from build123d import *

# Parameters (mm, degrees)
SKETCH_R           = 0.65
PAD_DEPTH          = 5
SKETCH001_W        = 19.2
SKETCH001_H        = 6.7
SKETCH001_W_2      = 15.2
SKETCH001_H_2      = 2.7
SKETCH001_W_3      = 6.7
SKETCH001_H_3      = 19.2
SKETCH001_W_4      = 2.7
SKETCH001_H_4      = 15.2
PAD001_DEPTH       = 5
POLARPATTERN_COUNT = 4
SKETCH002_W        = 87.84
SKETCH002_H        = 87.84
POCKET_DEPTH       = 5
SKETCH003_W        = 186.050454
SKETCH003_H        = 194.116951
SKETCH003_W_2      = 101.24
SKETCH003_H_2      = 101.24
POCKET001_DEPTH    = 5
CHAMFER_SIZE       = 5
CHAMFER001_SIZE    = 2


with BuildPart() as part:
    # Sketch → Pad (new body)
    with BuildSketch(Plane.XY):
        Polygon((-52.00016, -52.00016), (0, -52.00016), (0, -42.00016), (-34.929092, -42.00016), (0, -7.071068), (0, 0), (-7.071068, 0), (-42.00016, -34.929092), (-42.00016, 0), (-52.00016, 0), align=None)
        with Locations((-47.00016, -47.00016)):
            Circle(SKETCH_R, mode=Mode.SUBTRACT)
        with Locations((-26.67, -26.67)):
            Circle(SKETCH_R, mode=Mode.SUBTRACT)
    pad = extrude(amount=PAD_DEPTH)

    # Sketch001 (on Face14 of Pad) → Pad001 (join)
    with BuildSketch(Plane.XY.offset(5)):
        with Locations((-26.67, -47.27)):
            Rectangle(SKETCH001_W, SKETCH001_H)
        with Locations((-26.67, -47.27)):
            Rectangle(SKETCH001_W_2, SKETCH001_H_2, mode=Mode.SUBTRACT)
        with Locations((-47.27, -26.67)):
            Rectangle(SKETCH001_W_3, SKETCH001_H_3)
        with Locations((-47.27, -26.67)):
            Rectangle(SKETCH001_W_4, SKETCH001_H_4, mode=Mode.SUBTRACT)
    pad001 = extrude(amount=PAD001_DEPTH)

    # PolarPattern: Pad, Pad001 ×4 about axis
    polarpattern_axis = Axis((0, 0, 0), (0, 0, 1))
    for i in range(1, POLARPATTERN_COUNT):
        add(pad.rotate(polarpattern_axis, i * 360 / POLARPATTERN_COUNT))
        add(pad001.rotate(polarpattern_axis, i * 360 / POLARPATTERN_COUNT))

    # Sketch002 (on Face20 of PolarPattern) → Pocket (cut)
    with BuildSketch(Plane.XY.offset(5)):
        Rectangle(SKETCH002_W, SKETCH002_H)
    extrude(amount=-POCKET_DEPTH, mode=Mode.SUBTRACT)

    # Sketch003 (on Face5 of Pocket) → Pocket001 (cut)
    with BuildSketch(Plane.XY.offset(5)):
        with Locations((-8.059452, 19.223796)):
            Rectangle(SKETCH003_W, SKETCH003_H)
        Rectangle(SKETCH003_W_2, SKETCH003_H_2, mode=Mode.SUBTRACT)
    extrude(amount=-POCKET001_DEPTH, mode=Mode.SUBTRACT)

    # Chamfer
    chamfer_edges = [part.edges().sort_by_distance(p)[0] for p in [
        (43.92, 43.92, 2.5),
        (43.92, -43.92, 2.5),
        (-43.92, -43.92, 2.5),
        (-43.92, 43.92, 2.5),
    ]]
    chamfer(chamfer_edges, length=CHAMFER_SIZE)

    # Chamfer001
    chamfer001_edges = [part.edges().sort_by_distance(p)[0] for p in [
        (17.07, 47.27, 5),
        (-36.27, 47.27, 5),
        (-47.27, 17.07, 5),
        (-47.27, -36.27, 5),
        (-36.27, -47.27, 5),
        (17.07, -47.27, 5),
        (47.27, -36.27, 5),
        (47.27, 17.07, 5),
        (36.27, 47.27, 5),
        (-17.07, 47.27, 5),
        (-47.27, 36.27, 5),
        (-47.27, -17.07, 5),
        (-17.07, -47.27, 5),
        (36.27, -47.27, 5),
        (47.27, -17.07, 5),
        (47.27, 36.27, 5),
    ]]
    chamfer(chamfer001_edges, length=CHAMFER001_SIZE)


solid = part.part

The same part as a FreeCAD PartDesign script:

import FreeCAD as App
import Part
import Sketcher


def edges_at(feature, points):
    """Names of the edges that pass closest to the given points."""
    edges = feature.Shape.Edges
    near = lambda p: min(range(len(edges)), key=lambda i: edges[i].distToShape(Part.Vertex(*p))[0])
    return sorted({f"Edge{near(p) + 1}" for p in points})

doc = App.newDocument("Part")
body = doc.addObject("PartDesign::Body", "Body")

# Sketch on XY plane
sketch1 = body.newObject("Sketcher::SketchObject", "Sketch")
sketch1.AttachmentSupport = (doc.getObject("XY_Plane"), [""])
sketch1.MapMode = "FlatFace"
sketch1.addGeometry([
    Part.LineSegment(App.Vector(-52.00016, -52.00016, 0), App.Vector(0, -52.00016, 0)),  # 0
    Part.LineSegment(App.Vector(0, -52.00016, 0), App.Vector(0, -42.00016, 0)),  # 1
    Part.LineSegment(App.Vector(0, -42.00016, 0), App.Vector(-34.929092, -42.00016, 0)),  # 2
    Part.LineSegment(App.Vector(-34.929092, -42.00016, 0), App.Vector(0, -7.071068, 0)),  # 3
    Part.LineSegment(App.Vector(0, -7.071068, 0), App.Vector(0, 0, 0)),  # 4
    Part.LineSegment(App.Vector(0, 0, 0), App.Vector(-7.071068, 0, 0)),  # 5
    Part.LineSegment(App.Vector(-7.071068, 0, 0), App.Vector(-42.00016, -34.929092, 0)),  # 6
    Part.LineSegment(App.Vector(-42.00016, -34.929092, 0), App.Vector(-42.00016, 0, 0)),  # 7
    Part.LineSegment(App.Vector(-42.00016, 0, 0), App.Vector(-52.00016, 0, 0)),  # 8
    Part.LineSegment(App.Vector(-52.00016, 0, 0), App.Vector(-52.00016, -52.00016, 0)),  # 9
    Part.Circle(App.Vector(-47.00016, -47.00016, 0), App.Vector(0, 0, 1), 0.65),  # 10
    Part.Circle(App.Vector(-26.67, -26.67, 0), App.Vector(0, 0, 1), 0.65),  # 11
], False)
sketch1.addConstraint([
    Sketcher.Constraint("Coincident", 0, 2, 1, 1),
    Sketcher.Constraint("Coincident", 1, 2, 2, 1),
    Sketcher.Constraint("Coincident", 2, 2, 3, 1),
    Sketcher.Constraint("Coincident", 3, 2, 4, 1),
    Sketcher.Constraint("Coincident", 4, 2, 5, 1),
    Sketcher.Constraint("Coincident", 5, 2, 6, 1),
    Sketcher.Constraint("Coincident", 6, 2, 7, 1),
    Sketcher.Constraint("Coincident", 7, 2, 8, 1),
    Sketcher.Constraint("Coincident", 8, 2, 9, 1),
    Sketcher.Constraint("Coincident", 9, 2, 0, 1),
    Sketcher.Constraint("Horizontal", 0),
    Sketcher.Constraint("Vertical", 1),
    Sketcher.Constraint("Horizontal", 2),
    Sketcher.Constraint("Vertical", 4),
    Sketcher.Constraint("Horizontal", 5),
    Sketcher.Constraint("Vertical", 7),
    Sketcher.Constraint("Horizontal", 8),
    Sketcher.Constraint("Vertical", 9),
    Sketcher.Constraint("Coincident", 4, 2, -1, 1),
    Sketcher.Constraint("Equal", 10, 11),
    Sketcher.Constraint("PointOnObject", 0, 2, -2),
    Sketcher.Constraint("PointOnObject", 7, 2, -1),
    Sketcher.Constraint("Parallel", 3, 6),
    Sketcher.Constraint("Equal", 8, 1),
    Sketcher.Constraint("Equal", 5, 4),
    Sketcher.Constraint("Equal", 2, 7),
    Sketcher.Constraint("Equal", 0, 9),
    Sketcher.Constraint("Diameter", 10, 1.3),
    Sketcher.Constraint("DistanceX", 8, 2, 8, 1, 10.0),
    Sketcher.Constraint("DistanceY", 0, 2, 10, 3, 5.0),
    Sketcher.Constraint("DistanceX", 10, 3, 6, 2, 5.0),
    Sketcher.Constraint("DistanceX", 11, 3, -1, 1, 26.67),
    Sketcher.Constraint("DistanceY", 11, 3, -1, 1, 26.67),
    Sketcher.Constraint("DistanceX", 0, 1, 0, 2, 52.00016),
    Sketcher.Constraint("DistanceX", 2, 2, 2, 1, 34.929092),
])
pad1 = body.newObject("PartDesign::Pad", "Pad")
pad1.Profile = sketch1
pad1.Length = 5

# Sketch on XY plane
sketch2 = body.newObject("Sketcher::SketchObject", "Sketch001")
sketch2.AttachmentSupport = (doc.getObject("XY_Plane"), [""])
sketch2.MapMode = "FlatFace"
sketch2.AttachmentOffset = App.Placement(App.Vector(0, 0, 5), App.Rotation())
sketch2.addGeometry([
    Part.LineSegment(App.Vector(-36.27, -43.92, 0), App.Vector(-36.27, -50.62, 0)),  # 0
    Part.LineSegment(App.Vector(-36.27, -50.62, 0), App.Vector(-17.07, -50.62, 0)),  # 1
    Part.LineSegment(App.Vector(-17.07, -50.62, 0), App.Vector(-17.07, -43.92, 0)),  # 2
    Part.LineSegment(App.Vector(-17.07, -43.92, 0), App.Vector(-36.27, -43.92, 0)),  # 3
    Part.LineSegment(App.Vector(-19.07, -48.62, 0), App.Vector(-34.27, -48.62, 0)),  # 4
    Part.LineSegment(App.Vector(-34.27, -48.62, 0), App.Vector(-34.27, -45.92, 0)),  # 5
    Part.LineSegment(App.Vector(-34.27, -45.92, 0), App.Vector(-19.07, -45.92, 0)),  # 6
    Part.LineSegment(App.Vector(-19.07, -45.92, 0), App.Vector(-19.07, -48.62, 0)),  # 7
    Part.LineSegment(App.Vector(-50.62, -17.07, 0), App.Vector(-50.62, -36.27, 0)),  # 8
    Part.LineSegment(App.Vector(-50.62, -36.27, 0), App.Vector(-43.92, -36.27, 0)),  # 9
    Part.LineSegment(App.Vector(-43.92, -36.27, 0), App.Vector(-43.92, -17.07, 0)),  # 10
    Part.LineSegment(App.Vector(-43.92, -17.07, 0), App.Vector(-50.62, -17.07, 0)),  # 11
    Part.LineSegment(App.Vector(-45.92, -34.27, 0), App.Vector(-48.62, -34.27, 0)),  # 12
    Part.LineSegment(App.Vector(-48.62, -34.27, 0), App.Vector(-48.62, -19.07, 0)),  # 13
    Part.LineSegment(App.Vector(-48.62, -19.07, 0), App.Vector(-45.92, -19.07, 0)),  # 14
    Part.LineSegment(App.Vector(-45.92, -19.07, 0), App.Vector(-45.92, -34.27, 0)),  # 15
], False)
sketch2.addConstraint([
    Sketcher.Constraint("Coincident", 0, 2, 1, 1),
    Sketcher.Constraint("Coincident", 1, 2, 2, 1),
    Sketcher.Constraint("Coincident", 2, 2, 3, 1),
    Sketcher.Constraint("Coincident", 3, 2, 0, 1),
    Sketcher.Constraint("Coincident", 4, 2, 5, 1),
    Sketcher.Constraint("Coincident", 5, 2, 6, 1),
    Sketcher.Constraint("Coincident", 6, 2, 7, 1),
    Sketcher.Constraint("Coincident", 7, 2, 4, 1),
    Sketcher.Constraint("Coincident", 8, 2, 9, 1),
    Sketcher.Constraint("Coincident", 9, 2, 10, 1),
    Sketcher.Constraint("Coincident", 10, 2, 11, 1),
    Sketcher.Constraint("Coincident", 11, 2, 8, 1),
    Sketcher.Constraint("Coincident", 12, 2, 13, 1),
    Sketcher.Constraint("Coincident", 13, 2, 14, 1),
    Sketcher.Constraint("Coincident", 14, 2, 15, 1),
    Sketcher.Constraint("Coincident", 15, 2, 12, 1),
    Sketcher.Constraint("Vertical", 0),
    Sketcher.Constraint("Horizontal", 1),
    Sketcher.Constraint("Vertical", 2),
    Sketcher.Constraint("Horizontal", 3),
    Sketcher.Constraint("Horizontal", 4),
    Sketcher.Constraint("Vertical", 5),
    Sketcher.Constraint("Horizontal", 6),
    Sketcher.Constraint("Vertical", 7),
    Sketcher.Constraint("Vertical", 8),
    Sketcher.Constraint("Horizontal", 9),
    Sketcher.Constraint("Vertical", 10),
    Sketcher.Constraint("Horizontal", 11),
    Sketcher.Constraint("Horizontal", 12),
    Sketcher.Constraint("Vertical", 13),
    Sketcher.Constraint("Horizontal", 14),
    Sketcher.Constraint("Vertical", 15),
    Sketcher.Constraint("Equal", 11, 0),
    Sketcher.Constraint("Equal", 14, 5),
    Sketcher.Constraint("Equal", 3, 8),
    Sketcher.Constraint("Equal", 6, 13),
    Sketcher.Constraint("DistanceX", 1, 1, 1, 2, 19.2),
    Sketcher.Constraint("DistanceX", 4, 2, 4, 1, 15.2),
    Sketcher.Constraint("DistanceX", 9, 1, 9, 2, 6.7),
    Sketcher.Constraint("DistanceX", 12, 2, 12, 1, 2.7),
    Sketcher.Constraint("DistanceX", 0, 2, 4, 2, 2.0),
    Sketcher.Constraint("DistanceY", 0, 2, 4, 2, 2.0),
    Sketcher.Constraint("DistanceX", 8, 2, 12, 2, 2.0),
    Sketcher.Constraint("DistanceY", 8, 2, 12, 2, 2.0),
    Sketcher.Constraint("DistanceX", 0, 2, -1, 1, 36.27),
    Sketcher.Constraint("DistanceY", 0, 2, -1, 1, 50.62),
    Sketcher.Constraint("DistanceX", 8, 2, -1, 1, 50.62),
    Sketcher.Constraint("DistanceY", 8, 2, -1, 1, 36.27),
])
pad2 = body.newObject("PartDesign::Pad", "Pad001")
pad2.Profile = sketch2
pad2.Length = 5
doc.recompute()

polarpattern = body.newObject("PartDesign::PolarPattern", "PolarPattern")
polarpattern.Originals = [pad1, pad2]
polarpattern.Axis = (doc.getObject("Z_Axis"), [""])
polarpattern.Angle = 360
polarpattern.Occurrences = 4
body.Tip = polarpattern

# Sketch on XY plane
sketch3 = body.newObject("Sketcher::SketchObject", "Sketch002")
sketch3.AttachmentSupport = (doc.getObject("XY_Plane"), [""])
sketch3.MapMode = "FlatFace"
sketch3.AttachmentOffset = App.Placement(App.Vector(0, 0, 5), App.Rotation())
sketch3.addGeometry([
    Part.LineSegment(App.Vector(-43.92, 43.92, 0), App.Vector(-43.92, -43.92, 0)),
    Part.LineSegment(App.Vector(-43.92, -43.92, 0), App.Vector(43.92, -43.92, 0)),
    Part.LineSegment(App.Vector(43.92, -43.92, 0), App.Vector(43.92, 43.92, 0)),
    Part.LineSegment(App.Vector(43.92, 43.92, 0), App.Vector(-43.92, 43.92, 0)),
], False)
sketch3.addConstraint([
    Sketcher.Constraint("Coincident", 0, 2, 1, 1),
    Sketcher.Constraint("Coincident", 1, 2, 2, 1),
    Sketcher.Constraint("Coincident", 2, 2, 3, 1),
    Sketcher.Constraint("Coincident", 3, 2, 0, 1),
    Sketcher.Constraint("Vertical", 0),
    Sketcher.Constraint("Horizontal", 1),
    Sketcher.Constraint("Vertical", 2),
    Sketcher.Constraint("Horizontal", 3),
    Sketcher.Constraint("Symmetric", 0, 2, 2, 2, -1, 1),
    Sketcher.Constraint("Equal", 3, 0),
    Sketcher.Constraint("DistanceX", 1, 1, 1, 2, 87.84),
])
pocket1 = body.newObject("PartDesign::Pocket", "Pocket")
pocket1.Profile = sketch3
pocket1.Length = 5

# Sketch on XY plane
sketch4 = body.newObject("Sketcher::SketchObject", "Sketch003")
sketch4.AttachmentSupport = (doc.getObject("XY_Plane"), [""])
sketch4.MapMode = "FlatFace"
sketch4.AttachmentOffset = App.Placement(App.Vector(0, 0, 5), App.Rotation())
sketch4.addGeometry([
    Part.LineSegment(App.Vector(-101.084679, 116.282271, 0), App.Vector(-101.084679, -77.834679, 0)),  # 0
    Part.LineSegment(App.Vector(-101.084679, -77.834679, 0), App.Vector(84.965775, -77.834679, 0)),  # 1
    Part.LineSegment(App.Vector(84.965775, -77.834679, 0), App.Vector(84.965775, 116.282271, 0)),  # 2
    Part.LineSegment(App.Vector(84.965775, 116.282271, 0), App.Vector(-101.084679, 116.282271, 0)),  # 3
    Part.LineSegment(App.Vector(50.62, -50.62, 0), App.Vector(-50.62, -50.62, 0)),  # 4
    Part.LineSegment(App.Vector(-50.62, -50.62, 0), App.Vector(-50.62, 50.62, 0)),  # 5
    Part.LineSegment(App.Vector(-50.62, 50.62, 0), App.Vector(50.62, 50.62, 0)),  # 6
    Part.LineSegment(App.Vector(50.62, 50.62, 0), App.Vector(50.62, -50.62, 0)),  # 7
], False)
sketch4.addConstraint([
    Sketcher.Constraint("Coincident", 0, 2, 1, 1),
    Sketcher.Constraint("Coincident", 1, 2, 2, 1),
    Sketcher.Constraint("Coincident", 2, 2, 3, 1),
    Sketcher.Constraint("Coincident", 3, 2, 0, 1),
    Sketcher.Constraint("Coincident", 4, 2, 5, 1),
    Sketcher.Constraint("Coincident", 5, 2, 6, 1),
    Sketcher.Constraint("Coincident", 6, 2, 7, 1),
    Sketcher.Constraint("Coincident", 7, 2, 4, 1),
    Sketcher.Constraint("Vertical", 0),
    Sketcher.Constraint("Horizontal", 1),
    Sketcher.Constraint("Vertical", 2),
    Sketcher.Constraint("Horizontal", 3),
    Sketcher.Constraint("Horizontal", 4),
    Sketcher.Constraint("Vertical", 5),
    Sketcher.Constraint("Horizontal", 6),
    Sketcher.Constraint("Vertical", 7),
    Sketcher.Constraint("Symmetric", 4, 2, 6, 2, -1, 1),
    Sketcher.Constraint("Equal", 6, 5),
    Sketcher.Constraint("DistanceX", 4, 2, 4, 1, 101.24),
    Sketcher.Constraint("DistanceY", 0, 2, 0, 1, 194.116951),
    Sketcher.Constraint("DistanceX", 1, 1, 1, 2, 186.050454),
    Sketcher.Constraint("DistanceX", 0, 2, -1, 1, 101.084679),
    Sketcher.Constraint("DistanceY", 0, 2, -1, 1, 77.834679),
])
pocket2 = body.newObject("PartDesign::Pocket", "Pocket001")
pocket2.Profile = sketch4
pocket2.Length = 5
doc.recompute()

chamfer = body.newObject("PartDesign::Chamfer", "Chamfer")
chamfer.Base = (pocket2, edges_at(pocket2, [
    (43.92, 43.92, 2.5),
    (43.92, -43.92, 2.5),
    (-43.92, -43.92, 2.5),
    (-43.92, 43.92, 2.5),
]))
chamfer.Size = 5
doc.recompute()

chamfer2 = body.newObject("PartDesign::Chamfer", "Chamfer001")
chamfer2.Base = (chamfer, edges_at(chamfer, [
    (17.07, 47.27, 5),
    (-36.27, 47.27, 5),
    (-47.27, 17.07, 5),
    (-47.27, -36.27, 5),
    (-36.27, -47.27, 5),
    (17.07, -47.27, 5),
    (47.27, -36.27, 5),
    (47.27, 17.07, 5),
    (36.27, 47.27, 5),
    (-17.07, 47.27, 5),
    (-47.27, 36.27, 5),
    (-47.27, -17.07, 5),
    (-17.07, -47.27, 5),
    (36.27, -47.27, 5),
    (47.27, -17.07, 5),
    (47.27, 36.27, 5),
]))
chamfer2.Size = 2

doc.recompute()
